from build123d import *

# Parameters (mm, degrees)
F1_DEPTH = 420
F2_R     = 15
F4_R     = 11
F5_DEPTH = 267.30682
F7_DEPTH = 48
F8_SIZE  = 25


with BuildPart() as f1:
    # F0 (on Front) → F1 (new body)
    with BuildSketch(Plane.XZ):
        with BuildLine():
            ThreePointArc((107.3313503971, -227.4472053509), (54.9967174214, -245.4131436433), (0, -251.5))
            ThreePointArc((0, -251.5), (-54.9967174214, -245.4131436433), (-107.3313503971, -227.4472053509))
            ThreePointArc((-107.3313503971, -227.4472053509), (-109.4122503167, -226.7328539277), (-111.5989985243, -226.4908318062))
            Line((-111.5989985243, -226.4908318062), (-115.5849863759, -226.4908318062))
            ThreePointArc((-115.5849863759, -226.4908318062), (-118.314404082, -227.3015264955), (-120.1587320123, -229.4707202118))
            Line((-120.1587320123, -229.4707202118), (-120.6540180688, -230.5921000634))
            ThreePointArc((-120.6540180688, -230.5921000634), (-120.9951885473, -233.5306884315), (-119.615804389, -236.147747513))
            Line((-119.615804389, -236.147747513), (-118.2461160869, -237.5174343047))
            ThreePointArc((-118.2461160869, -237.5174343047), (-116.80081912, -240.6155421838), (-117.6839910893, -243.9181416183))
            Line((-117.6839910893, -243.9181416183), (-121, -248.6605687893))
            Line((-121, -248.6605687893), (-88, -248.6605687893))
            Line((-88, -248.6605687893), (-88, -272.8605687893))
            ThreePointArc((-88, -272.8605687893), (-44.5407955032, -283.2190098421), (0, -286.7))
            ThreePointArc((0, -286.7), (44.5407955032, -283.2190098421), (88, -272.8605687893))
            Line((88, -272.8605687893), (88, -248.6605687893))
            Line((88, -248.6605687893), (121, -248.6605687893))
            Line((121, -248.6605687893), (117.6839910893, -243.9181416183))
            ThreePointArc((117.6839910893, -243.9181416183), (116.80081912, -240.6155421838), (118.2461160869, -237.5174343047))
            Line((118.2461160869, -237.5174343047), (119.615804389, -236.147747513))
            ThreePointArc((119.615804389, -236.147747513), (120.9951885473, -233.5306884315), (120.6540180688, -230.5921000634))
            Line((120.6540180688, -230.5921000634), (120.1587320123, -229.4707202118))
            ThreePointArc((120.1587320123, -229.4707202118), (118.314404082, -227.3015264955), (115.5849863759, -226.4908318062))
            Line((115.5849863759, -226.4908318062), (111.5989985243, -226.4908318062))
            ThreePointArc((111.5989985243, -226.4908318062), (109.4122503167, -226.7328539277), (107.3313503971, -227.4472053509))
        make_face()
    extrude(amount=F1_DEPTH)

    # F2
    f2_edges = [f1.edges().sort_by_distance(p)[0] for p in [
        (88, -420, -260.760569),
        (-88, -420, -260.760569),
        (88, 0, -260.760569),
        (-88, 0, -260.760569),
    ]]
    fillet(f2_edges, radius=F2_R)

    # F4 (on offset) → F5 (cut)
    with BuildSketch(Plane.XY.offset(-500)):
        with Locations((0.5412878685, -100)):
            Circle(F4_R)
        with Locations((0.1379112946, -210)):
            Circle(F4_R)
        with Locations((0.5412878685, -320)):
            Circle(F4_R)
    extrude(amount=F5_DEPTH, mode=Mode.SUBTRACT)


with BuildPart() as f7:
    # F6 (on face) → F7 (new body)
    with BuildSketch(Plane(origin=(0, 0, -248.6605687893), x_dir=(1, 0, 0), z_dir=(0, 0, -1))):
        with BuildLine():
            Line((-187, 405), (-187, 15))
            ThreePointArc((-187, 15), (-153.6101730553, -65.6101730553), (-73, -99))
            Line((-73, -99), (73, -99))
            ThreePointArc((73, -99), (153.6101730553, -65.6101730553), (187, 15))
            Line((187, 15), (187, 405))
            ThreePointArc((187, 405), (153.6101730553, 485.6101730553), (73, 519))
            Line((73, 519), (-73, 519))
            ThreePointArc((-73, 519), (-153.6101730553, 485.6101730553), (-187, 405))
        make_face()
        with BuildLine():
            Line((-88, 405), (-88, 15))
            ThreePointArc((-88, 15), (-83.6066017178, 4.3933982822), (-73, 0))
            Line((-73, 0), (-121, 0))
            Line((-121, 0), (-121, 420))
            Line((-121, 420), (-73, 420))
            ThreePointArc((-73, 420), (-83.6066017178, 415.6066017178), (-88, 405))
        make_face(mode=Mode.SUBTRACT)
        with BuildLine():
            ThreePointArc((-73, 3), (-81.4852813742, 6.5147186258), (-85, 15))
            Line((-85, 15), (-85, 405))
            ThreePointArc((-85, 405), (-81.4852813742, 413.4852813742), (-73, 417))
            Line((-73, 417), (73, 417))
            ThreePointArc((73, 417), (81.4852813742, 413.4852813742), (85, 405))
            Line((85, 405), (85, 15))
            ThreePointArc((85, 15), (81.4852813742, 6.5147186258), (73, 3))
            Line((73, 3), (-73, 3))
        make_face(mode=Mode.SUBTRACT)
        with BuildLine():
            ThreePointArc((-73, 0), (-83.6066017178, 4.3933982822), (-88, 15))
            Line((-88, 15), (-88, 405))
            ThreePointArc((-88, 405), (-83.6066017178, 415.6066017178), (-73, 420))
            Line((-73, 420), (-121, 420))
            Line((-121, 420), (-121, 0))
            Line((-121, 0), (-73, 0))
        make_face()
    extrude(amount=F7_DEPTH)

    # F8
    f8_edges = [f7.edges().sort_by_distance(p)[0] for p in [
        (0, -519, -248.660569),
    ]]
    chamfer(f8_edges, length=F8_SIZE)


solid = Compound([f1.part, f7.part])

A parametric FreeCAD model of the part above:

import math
import FreeCAD as App
import Part
import Sketcher
Q = App.Units.Quantity


def edges_at(feature, points):
    """Names of the edges that pass closest to the given points."""
    edges = feature.Shape.Edges
    near = lambda p: min(range(len(edges)), key=lambda i: edges[i].distToShape(Part.Vertex(*p))[0])
    return sorted({f"Edge{near(p) + 1}" for p in points})

doc = App.newDocument("Part")
body = doc.addObject("PartDesign::Body", "Body")

# Sketch on XZ plane
sketch1 = body.newObject("Sketcher::SketchObject", "Sketch")
sketch1.AttachmentSupport = (doc.getObject("XZ_Plane"), [""])
sketch1.MapMode = "FlatFace"
sketch1.addGeometry([
    Part.ArcOfCircle(Part.Circle(App.Vector(0, 0, 0), App.Vector(0, 0, 1), 251.5), math.radians(-90), math.radians(-65)),  # 0
    Part.ArcOfCircle(Part.Circle(App.Vector(0, 0, 0), App.Vector(0, 0, 1), 251.5), math.radians(-115), math.radians(-90)),  # 1
    Part.ArcOfCircle(Part.Circle(App.Vector(-111.6, -236.5, 0), App.Vector(0, 0, 1), 10), math.radians(65), math.radians(90)),  # 2
    Part.LineSegment(App.Vector(-111.6, -226.5, 0), App.Vector(-115.6, -226.5, 0)),  # 3
    Part.ArcOfCircle(Part.Circle(App.Vector(-115.6, -231.5, 0), App.Vector(0, 0, 1), 5), math.radians(90), math.radians(156)),  # 4
    Part.LineSegment(App.Vector(-120.2, -229.5, 0), App.Vector(-120.7, -230.6, 0)),  # 5
    Part.ArcOfCircle(Part.Circle(App.Vector(-116.1, -232.6, 0), App.Vector(0, 0, 1), 5), math.radians(156), math.radians(225)),  # 6
    Part.LineSegment(App.Vector(-119.6, -236.1, 0), App.Vector(-118.2, -237.5, 0)),  # 7
    Part.ArcOfCircle(Part.Circle(App.Vector(-121.8, -241.1, 0), App.Vector(0, 0, 1), 5), math.radians(-35), math.radians(45)),  # 8
    Part.LineSegment(App.Vector(-117.7, -243.9, 0), App.Vector(-121, -248.7, 0)),  # 9
    Part.LineSegment(App.Vector(-121, -248.7, 0), App.Vector(-88, -248.7, 0)),  # 10
    Part.LineSegment(App.Vector(-88, -248.7, 0), App.Vector(-88, -272.9, 0)),  # 11
    Part.ArcOfCircle(Part.Circle(App.Vector(0, 0, 0), App.Vector(0, 0, 1), 286.7), math.radians(-107.87), math.radians(-90)),  # 12
    Part.ArcOfCircle(Part.Circle(App.Vector(0, 0, 0), App.Vector(0, 0, 1), 286.7), math.radians(-90), math.radians(-72.13)),  # 13
    Part.LineSegment(App.Vector(88, -272.9, 0), App.Vector(88, -248.7, 0)),  # 14
    Part.LineSegment(App.Vector(88, -248.7, 0), App.Vector(121, -248.7, 0)),  # 15
    Part.LineSegment(App.Vector(121, -248.7, 0), App.Vector(117.7, -243.9, 0)),  # 16
    Part.ArcOfCircle(Part.Circle(App.Vector(121.8, -241.1, 0), App.Vector(0, 0, 1), 5), math.radians(135), math.radians(215)),  # 17
    Part.LineSegment(App.Vector(118.2, -237.5, 0), App.Vector(119.6, -236.1, 0)),  # 18
    Part.ArcOfCircle(Part.Circle(App.Vector(116.1, -232.6, 0), App.Vector(0, 0, 1), 5), math.radians(-45), math.radians(24)),  # 19
    Part.LineSegment(App.Vector(120.7, -230.6, 0), App.Vector(120.2, -229.5, 0)),  # 20
    Part.ArcOfCircle(Part.Circle(App.Vector(115.6, -231.5, 0), App.Vector(0, 0, 1), 5), math.radians(24), math.radians(90)),  # 21
    Part.LineSegment(App.Vector(115.6, -226.5, 0), App.Vector(111.6, -226.5, 0)),  # 22
    Part.ArcOfCircle(Part.Circle(App.Vector(111.6, -236.5, 0), App.Vector(0, 0, 1), 10), math.radians(90), math.radians(115)),  # 23
], False)
sketch1.addConstraint([
    Sketcher.Constraint("Tangent", 0, 1, 1, 2),
    Sketcher.Constraint("Tangent", 1, 1, 2, 1),
    Sketcher.Constraint("Tangent", 2, 2, 3, 1),
    Sketcher.Constraint("Tangent", 3, 2, 4, 1),
    Sketcher.Constraint("Tangent", 4, 2, 5, 1),
    Sketcher.Constraint("Tangent", 5, 2, 6, 1),
    Sketcher.Constraint("Tangent", 6, 2, 7, 1),
    Sketcher.Constraint("Tangent", 7, 2, 8, 2),
    Sketcher.Constraint("Tangent", 8, 1, 9, 1),
    Sketcher.Constraint("Coincident", 9, 2, 10, 1),
    Sketcher.Constraint("Coincident", 10, 2, 11, 1),
    Sketcher.Constraint("Coincident", 11, 2, 12, 1),
    Sketcher.Constraint("Tangent", 12, 2, 13, 1),
    Sketcher.Constraint("Coincident", 13, 2, 14, 1),
    Sketcher.Constraint("Coincident", 14, 2, 15, 1),
    Sketcher.Constraint("Coincident", 15, 2, 16, 1),
    Sketcher.Constraint("Tangent", 16, 2, 17, 2),
    Sketcher.Constraint("Tangent", 17, 1, 18, 1),
    Sketcher.Constraint("Tangent", 18, 2, 19, 1),
    Sketcher.Constraint("Tangent", 19, 2, 20, 1),
    Sketcher.Constraint("Tangent", 20, 2, 21, 1),
    Sketcher.Constraint("Tangent", 21, 2, 22, 1),
    Sketcher.Constraint("Tangent", 22, 2, 23, 1),
    Sketcher.Constraint("Tangent", 23, 2, 0, 2),
    Sketcher.Constraint("Horizontal", 3),
    Sketcher.Constraint("Horizontal", 10),
    Sketcher.Constraint("Vertical", 11),
    Sketcher.Constraint("Vertical", 14),
    Sketcher.Constraint("Horizontal", 15),
    Sketcher.Constraint("Horizontal", 22),
    Sketcher.Constraint("Coincident", 0, 3, -1, 1),
    Sketcher.Constraint("Coincident", 12, 3, -1, 1),
    Sketcher.Constraint("Equal", 0, 1),
    Sketcher.Constraint("Equal", 4, 6),
    Sketcher.Constraint("Equal", 6, 8),
    Sketcher.Constraint("Equal", 12, 13),
    Sketcher.Constraint("Equal", 8, 17),
    Sketcher.Constraint("Equal", 17, 19),
    Sketcher.Constraint("Equal", 19, 21),
    Sketcher.Constraint("Equal", 2, 23),
    Sketcher.Constraint("Symmetric", 8, 3, 17, 3, -2),
    Sketcher.Constraint("Symmetric", 6, 3, 19, 3, -2),
    Sketcher.Constraint("Symmetric", 4, 3, 21, 3, -2),
    Sketcher.Constraint("Symmetric", 10, 2, 14, 2, -2),
    Sketcher.Constraint("PointOnObject", 0, 1, -2),
    Sketcher.Constraint("PointOnObject", 12, 2, -2),
    Sketcher.Constraint("Perpendicular", 7, 18),
    Sketcher.Constraint("Horizontal", 8, 1, 16, 2),
    Sketcher.Constraint("Radius", 2, Q("10 mm")),
    Sketcher.Constraint("Radius", 4, Q("5 mm")),
    Sketcher.Constraint("Radius", 0, Q("251.5 mm")),
    Sketcher.Constraint("Radius", 12, Q("286.7 mm")),
    Sketcher.Constraint("DistanceX", 10, 1, 10, 2, Q("33 mm")),
    Sketcher.Constraint("DistanceY", 11, 2, 11, 1, Q("24.2 mm")),
    Sketcher.Constraint("DistanceX", 9, 2, -1, 1, Q("121 mm")),
    Sketcher.Constraint("DistanceX", 2, 3, -1, 1, Q("111.598999 mm")),
    Sketcher.Constraint("DistanceY", 5, 2, -1, 1, Q("230.5921 mm")),
    Sketcher.Constraint("DistanceY", 9, 2, 8, 3, Q("7.607599 mm")),
    Sketcher.Constraint("DistanceX", 17, 1, 19, 2, Q("2.407902 mm")),
    Sketcher.Constraint("DistanceX", 3, 2, 3, 1, Q("3.985988 mm")),
])
pad1 = body.newObject("PartDesign::Pad", "Pad")
pad1.Profile = sketch1
pad1.Length = 420
doc.recompute()

fillet = body.newObject("PartDesign::Fillet", "Fillet")
fillet.Base = (pad1, edges_at(pad1, [
    (88, -420, -260.761),
    (-88, -420, -260.761),
    (88, 0, -260.761),
    (-88, 0, -260.761),
]))
fillet.Radius = 15

# Sketch on XY plane
sketch2 = body.newObject("Sketcher::SketchObject", "Sketch001")
sketch2.AttachmentSupport = (doc.getObject("XY_Plane"), [""])
sketch2.MapMode = "FlatFace"
sketch2.AttachmentOffset = App.Placement(App.Vector(0, 0, -500), App.Rotation())
sketch2.addGeometry([
    Part.Circle(App.Vector(1, -100, 0), App.Vector(0, 0, 1), 11),
    Part.Circle(App.Vector(0, -210, 0), App.Vector(0, 0, 1), 11),
    Part.Circle(App.Vector(1, -320, 0), App.Vector(0, 0, 1), 11),
], False)
sketch2.addConstraint([
    Sketcher.Constraint("Equal", 0, 1),
    Sketcher.Constraint("Equal", 1, 2),
    Sketcher.Constraint("Vertical", 0, 3, 2, 3),
    Sketcher.Constraint("Diameter", 0, Q("22 mm")),
    Sketcher.Constraint("DistanceY", 0, 3, -1, 1, Q("100 mm")),
    Sketcher.Constraint("DistanceY", 1, 3, -1, 1, Q("210 mm")),
    Sketcher.Constraint("DistanceY", 2, 3, -1, 1, Q("320 mm")),
    Sketcher.Constraint("DistanceX", -1, 1, 1, 3, Q("0.137911 mm")),
    Sketcher.Constraint("DistanceX", -1, 1, 0, 3, Q("0.541288 mm")),
])
pocket1 = body.newObject("PartDesign::Pocket", "Pocket")
pocket1.Profile = sketch2
pocket1.Length = 267.30682
pocket1.Reversed = True
body2 = doc.addObject("PartDesign::Body", "Body001")

# Sketch on XY plane
sketch3 = body2.newObject("Sketcher::SketchObject", "Sketch002")
sketch3.AttachmentSupport = (doc.getObject("XY_Plane001"), [""])
sketch3.MapMode = "FlatFace"
sketch3.AttachmentOffset = App.Placement(App.Vector(0, 0, -248.660569), App.Rotation())
sketch3.addGeometry([
    Part.LineSegment(App.Vector(-187, -405, 0), App.Vector(-187, -15, 0)),  # 0
    Part.ArcOfCircle(Part.Circle(App.Vector(-73, -15, 0), App.Vector(0, 0, 1), 114), math.radians(90), math.radians(180)),  # 1
    Part.LineSegment(App.Vector(-73, 99, 0), App.Vector(73, 99, 0)),  # 2
    Part.ArcOfCircle(Part.Circle(App.Vector(73, -15, 0), App.Vector(0, 0, 1), 114), math.radians(0), math.radians(90)),  # 3
    Part.LineSegment(App.Vector(187, -15, 0), App.Vector(187, -405, 0)),  # 4
    Part.ArcOfCircle(Part.Circle(App.Vector(73, -405, 0), App.Vector(0, 0, 1), 114), math.radians(-90), math.radians(0)),  # 5
    Part.LineSegment(App.Vector(73, -519, 0), App.Vector(-73, -519, 0)),  # 6
    Part.ArcOfCircle(Part.Circle(App.Vector(-73, -405, 0), App.Vector(0, 0, 1), 114), math.radians(180), math.radians(270)),  # 7
    Part.LineSegment(App.Vector(73, -3, 0), App.Vector(-73, -3, 0)),  # 8
    Part.ArcOfCircle(Part.Circle(App.Vector(-73, -15, 0), App.Vector(0, 0, 1), 12), math.radians(90), math.radians(180)),  # 9
    Part.LineSegment(App.Vector(-85, -15, 0), App.Vector(-85, -405, 0)),  # 10
    Part.ArcOfCircle(Part.Circle(App.Vector(-73, -405, 0), App.Vector(0, 0, 1), 12), math.radians(180), math.radians(270)),  # 11
    Part.LineSegment(App.Vector(-73, -417, 0), App.Vector(73, -417, 0)),  # 12
    Part.ArcOfCircle(Part.Circle(App.Vector(73, -405, 0), App.Vector(0, 0, 1), 12), math.radians(-90), math.radians(0)),  # 13
    Part.LineSegment(App.Vector(85, -405, 0), App.Vector(85, -15, 0)),  # 14
    Part.ArcOfCircle(Part.Circle(App.Vector(73, -15, 0), App.Vector(0, 0, 1), 12), math.radians(0), math.radians(90)),  # 15
], False)
sketch3.addConstraint([
    Sketcher.Constraint("Tangent", 0, 2, 1, 2),
    Sketcher.Constraint("Tangent", 1, 1, 2, 1),
    Sketcher.Constraint("Tangent", 2, 2, 3, 2),
    Sketcher.Constraint("Tangent", 3, 1, 4, 1),
    Sketcher.Constraint("Tangent", 4, 2, 5, 2),
    Sketcher.Constraint("Tangent", 5, 1, 6, 1),
    Sketcher.Constraint("Tangent", 6, 2, 7, 2),
    Sketcher.Constraint("Tangent", 7, 1, 0, 1),
    Sketcher.Constraint("Tangent", 8, 2, 9, 1),
    Sketcher.Constraint("Tangent", 9, 2, 10, 1),
    Sketcher.Constraint("Tangent", 10, 2, 11, 1),
    Sketcher.Constraint("Tangent", 11, 2, 12, 1),
    Sketcher.Constraint("Tangent", 12, 2, 13, 1),
    Sketcher.Constraint("Tangent", 13, 2, 14, 1),
    Sketcher.Constraint("Tangent", 14, 2, 15, 1),
    Sketcher.Constraint("Tangent", 15, 2, 8, 1),
    Sketcher.Constraint("Vertical", 0),
    Sketcher.Constraint("Horizontal", 2),
    Sketcher.Constraint("Vertical", 4),
    Sketcher.Constraint("Horizontal", 6),
    Sketcher.Constraint("Horizontal", 8),
    Sketcher.Constraint("Vertical", 10),
    Sketcher.Constraint("Horizontal", 12),
    Sketcher.Constraint("Vertical", 14),
    Sketcher.Constraint("Coincident", 9, 3, 1, 3),
    Sketcher.Constraint("Coincident", 11, 3, 7, 3),
    Sketcher.Constraint("Coincident", 13, 3, 5, 3),
    Sketcher.Constraint("Equal", 1, 3),
    Sketcher.Constraint("Equal", 3, 5),
    Sketcher.Constraint("Equal", 5, 7),
    Sketcher.Constraint("Equal", 13, 15),
    Sketcher.Constraint("Radius", 1, Q("114 mm")),
    Sketcher.Constraint("Radius", 9, Q("12 mm")),
    Sketcher.Constraint("DistanceX", 2, 1, 2, 2, Q("146 mm")),
    Sketcher.Constraint("DistanceY", 0, 1, 0, 2, Q("390 mm")),
    Sketcher.Constraint("DistanceX", 1, 3, -1, 1, Q("73 mm")),
    Sketcher.Constraint("DistanceY", 1, 3, -1, 1, Q("15 mm")),
])
pad2 = body2.newObject("PartDesign::Pad", "Pad001")
pad2.Profile = sketch3
pad2.Length = 48
pad2.Reversed = True
doc.recompute()

chamfer = body2.newObject("PartDesign::Chamfer", "Chamfer")
chamfer.Base = (pad2, edges_at(pad2, [(0, -519, -248.661)]))
chamfer.Size = 25

doc.recompute()
